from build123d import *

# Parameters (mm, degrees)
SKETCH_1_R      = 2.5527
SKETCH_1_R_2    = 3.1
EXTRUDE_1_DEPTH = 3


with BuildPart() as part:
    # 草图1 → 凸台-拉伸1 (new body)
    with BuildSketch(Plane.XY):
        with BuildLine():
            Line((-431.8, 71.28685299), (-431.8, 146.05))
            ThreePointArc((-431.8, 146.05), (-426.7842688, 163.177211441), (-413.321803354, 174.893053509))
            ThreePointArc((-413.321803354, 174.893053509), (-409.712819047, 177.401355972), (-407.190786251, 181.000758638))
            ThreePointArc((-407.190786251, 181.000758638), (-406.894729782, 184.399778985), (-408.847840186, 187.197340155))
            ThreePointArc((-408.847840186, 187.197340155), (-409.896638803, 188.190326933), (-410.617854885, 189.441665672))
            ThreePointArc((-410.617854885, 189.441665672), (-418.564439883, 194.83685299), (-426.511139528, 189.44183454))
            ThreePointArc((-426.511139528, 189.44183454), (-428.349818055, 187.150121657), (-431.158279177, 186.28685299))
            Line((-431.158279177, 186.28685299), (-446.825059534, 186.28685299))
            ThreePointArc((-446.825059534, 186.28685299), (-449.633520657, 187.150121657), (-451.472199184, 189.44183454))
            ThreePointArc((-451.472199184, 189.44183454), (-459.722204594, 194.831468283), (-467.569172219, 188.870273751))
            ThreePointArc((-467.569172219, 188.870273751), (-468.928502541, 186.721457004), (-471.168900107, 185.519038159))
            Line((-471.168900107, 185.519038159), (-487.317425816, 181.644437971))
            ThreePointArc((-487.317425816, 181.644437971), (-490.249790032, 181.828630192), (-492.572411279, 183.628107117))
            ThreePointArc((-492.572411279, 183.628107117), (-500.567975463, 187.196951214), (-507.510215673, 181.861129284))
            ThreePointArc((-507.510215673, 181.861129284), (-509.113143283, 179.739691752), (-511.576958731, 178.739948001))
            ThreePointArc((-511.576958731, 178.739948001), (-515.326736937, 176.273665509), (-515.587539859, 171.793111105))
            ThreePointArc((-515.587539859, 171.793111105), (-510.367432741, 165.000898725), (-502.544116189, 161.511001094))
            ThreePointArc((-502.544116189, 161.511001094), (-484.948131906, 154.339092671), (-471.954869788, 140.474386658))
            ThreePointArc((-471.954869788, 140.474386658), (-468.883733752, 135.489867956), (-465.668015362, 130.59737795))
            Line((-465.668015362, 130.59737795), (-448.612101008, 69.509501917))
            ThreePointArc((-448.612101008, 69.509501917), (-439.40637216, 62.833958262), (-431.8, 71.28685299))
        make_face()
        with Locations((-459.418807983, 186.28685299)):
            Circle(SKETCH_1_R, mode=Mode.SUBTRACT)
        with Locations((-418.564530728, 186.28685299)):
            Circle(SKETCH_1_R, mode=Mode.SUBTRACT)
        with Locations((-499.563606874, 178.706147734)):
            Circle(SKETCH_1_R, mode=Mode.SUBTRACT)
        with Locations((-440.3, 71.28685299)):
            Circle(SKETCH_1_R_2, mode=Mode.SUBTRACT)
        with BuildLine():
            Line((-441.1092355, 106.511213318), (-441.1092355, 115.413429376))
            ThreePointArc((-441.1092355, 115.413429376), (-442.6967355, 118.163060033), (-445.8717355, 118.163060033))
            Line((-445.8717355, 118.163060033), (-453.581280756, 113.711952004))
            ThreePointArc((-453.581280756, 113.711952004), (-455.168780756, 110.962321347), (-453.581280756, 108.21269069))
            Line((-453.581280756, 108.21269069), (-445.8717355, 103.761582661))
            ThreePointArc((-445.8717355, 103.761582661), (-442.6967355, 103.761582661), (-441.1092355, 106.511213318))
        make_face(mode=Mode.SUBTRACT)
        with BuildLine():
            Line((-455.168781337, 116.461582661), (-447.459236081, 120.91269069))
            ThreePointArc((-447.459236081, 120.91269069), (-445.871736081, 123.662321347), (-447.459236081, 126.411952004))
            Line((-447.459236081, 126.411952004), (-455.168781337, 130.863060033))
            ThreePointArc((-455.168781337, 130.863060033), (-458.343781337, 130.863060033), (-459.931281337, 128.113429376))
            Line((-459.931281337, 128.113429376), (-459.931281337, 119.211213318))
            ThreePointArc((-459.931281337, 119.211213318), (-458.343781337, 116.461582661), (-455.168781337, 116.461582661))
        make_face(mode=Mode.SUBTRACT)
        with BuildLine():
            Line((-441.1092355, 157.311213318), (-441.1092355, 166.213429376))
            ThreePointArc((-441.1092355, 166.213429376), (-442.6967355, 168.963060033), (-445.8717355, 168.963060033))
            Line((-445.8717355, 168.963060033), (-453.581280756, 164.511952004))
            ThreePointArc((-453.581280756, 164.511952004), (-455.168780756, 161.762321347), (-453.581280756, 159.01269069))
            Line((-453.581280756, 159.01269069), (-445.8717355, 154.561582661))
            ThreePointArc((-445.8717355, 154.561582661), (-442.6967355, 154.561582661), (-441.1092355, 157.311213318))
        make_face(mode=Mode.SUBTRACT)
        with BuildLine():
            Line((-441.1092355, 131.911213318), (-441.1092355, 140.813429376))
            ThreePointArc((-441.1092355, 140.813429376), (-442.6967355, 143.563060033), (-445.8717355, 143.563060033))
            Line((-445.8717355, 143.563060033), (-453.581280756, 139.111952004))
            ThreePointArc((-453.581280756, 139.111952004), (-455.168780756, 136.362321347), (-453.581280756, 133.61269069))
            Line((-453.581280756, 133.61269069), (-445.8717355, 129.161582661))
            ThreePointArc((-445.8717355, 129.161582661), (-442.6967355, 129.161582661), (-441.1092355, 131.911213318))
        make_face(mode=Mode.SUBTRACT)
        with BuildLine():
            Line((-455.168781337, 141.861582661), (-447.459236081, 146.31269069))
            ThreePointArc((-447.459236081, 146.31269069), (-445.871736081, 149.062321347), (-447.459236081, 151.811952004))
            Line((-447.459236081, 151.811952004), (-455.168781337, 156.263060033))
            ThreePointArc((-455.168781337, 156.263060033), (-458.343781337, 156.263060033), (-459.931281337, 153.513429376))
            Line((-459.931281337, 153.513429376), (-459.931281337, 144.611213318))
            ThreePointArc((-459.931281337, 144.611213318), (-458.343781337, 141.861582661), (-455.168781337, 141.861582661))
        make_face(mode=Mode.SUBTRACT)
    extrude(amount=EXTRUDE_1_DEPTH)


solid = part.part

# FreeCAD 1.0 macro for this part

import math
import FreeCAD as App
import Part
import Sketcher

V = App.Vector
Q = App.Units.Quantity

doc = App.newDocument("Part")
body = doc.addObject("PartDesign::Body", "Body")

# Sketch on XY plane
sketch1 = doc.addObject("Sketcher::SketchObject", "Sketch")
body.addObject(sketch1)
sketch1.AttachmentSupport = (doc.XY_Plane, [""])
sketch1.MapMode = "FlatFace"
sketch1.addGeometry(Part.LineSegment(V(-431.8, 71.3, 0), V(-431.8, 146.1, 0)), False)
sketch1.addGeometry(Part.ArcOfCircle(Part.Circle(V(-400.1, 146.1, 0), V(0, 0, 1), 31.7), math.radians(115), math.radians(180)), False)
sketch1.addGeometry(Part.ArcOfCircle(Part.Circle(V(-418.6, 186.3, 0), V(0, 0, 1), 12.5), math.radians(-65), math.radians(-25)), False)
sketch1.addGeometry(Part.ArcOfCircle(Part.Circle(V(-411.7, 183.1, 0), V(0, 0, 1), 5), math.radians(-25), math.radians(55)), False)
sketch1.addGeometry(Part.ArcOfCircle(Part.Circle(V(-406, 191.3, 0), V(0, 0, 1), 5), math.radians(-158), math.radians(-125)), False)
sketch1.addGeometry(Part.ArcOfCircle(Part.Circle(V(-418.6, 186.3, 0), V(0, 0, 1), 8.6), math.radians(22), math.radians(158)), False)
sketch1.addGeometry(Part.ArcOfCircle(Part.Circle(V(-431.2, 191.3, 0), V(0, 0, 1), 5), math.radians(-90), math.radians(-22)), False)
sketch1.addGeometry(Part.LineSegment(V(-431.2, 186.3, 0), V(-446.8, 186.3, 0)), False)
sketch1.addGeometry(Part.ArcOfCircle(Part.Circle(V(-446.8, 191.3, 0), V(0, 0, 1), 5), math.radians(-158), math.radians(-90)), False)
sketch1.addGeometry(Part.ArcOfCircle(Part.Circle(V(-459.4, 186.3, 0), V(0, 0, 1), 8.5), math.radians(22), math.radians(162)), False)
sketch1.addGeometry(Part.ArcOfCircle(Part.Circle(V(-472.3, 190.4, 0), V(0, 0, 1), 5), math.radians(-77), math.radians(-18)), False)
sketch1.addGeometry(Part.LineSegment(V(-471.2, 185.5, 0), V(-487.3, 181.6, 0)), False)
sketch1.addGeometry(Part.ArcOfCircle(Part.Circle(V(-488.5, 186.5, 0), V(0, 0, 1), 5), math.radians(-145), math.radians(-77)), False)
sketch1.addGeometry(Part.ArcOfCircle(Part.Circle(V(-499.6, 178.7, 0), V(0, 0, 1), 8.6), math.radians(35), math.radians(158)), False)
sketch1.addGeometry(Part.ArcOfCircle(Part.Circle(V(-512.2, 183.7, 0), V(0, 0, 1), 5), math.radians(-83), math.radians(-22)), False)
sketch1.addGeometry(Part.ArcOfCircle(Part.Circle(V(-511, 173.8, 0), V(0, 0, 1), 5), math.radians(97), math.radians(203)), False)
sketch1.addGeometry(Part.ArcOfCircle(Part.Circle(V(-499.6, 178.7, 0), V(0, 0, 1), 17.5), math.radians(-157), math.radians(-100)), False)
sketch1.addGeometry(Part.ArcOfCircle(Part.Circle(V(-510.1, 117.7, 0), V(0, 0, 1), 44.5), math.radians(31), math.radians(80)), False)
sketch1.addGeometry(Part.ArcOfCircle(Part.Circle(V(-300.2, 242.9, 0), V(0, 0, 1), 200), math.radians(-149.2), math.radians(-145.85)), False)
sketch1.addGeometry(Part.LineSegment(V(-465.7, 130.6, 0), V(-448.6, 69.5, 0)), False)
sketch1.addGeometry(Part.ArcOfCircle(Part.Circle(V(-440.3, 71.3, 0), V(0, 0, 1), 8.5), math.radians(-168), math.radians(0)), False)
sketch1.addGeometry(Part.Circle(V(-440.3, 71.3, 0), V(0, 0, 1), 3.1), False)
sketch1.addGeometry(Part.LineSegment(V(-441.1, 115.4, 0), V(-441.1, 106.5, 0)), False)
sketch1.addGeometry(Part.ArcOfCircle(Part.Circle(V(-444.3, 106.5, 0), V(0, 0, 1), 3.2), math.radians(-120), math.radians(0)), False)
sketch1.addGeometry(Part.LineSegment(V(-445.9, 103.8, 0), V(-453.6, 108.2, 0)), False)
sketch1.addGeometry(Part.ArcOfCircle(Part.Circle(V(-452, 111, 0), V(0, 0, 1), 3.2), math.radians(120), math.radians(240)), False)
sketch1.addGeometry(Part.LineSegment(V(-453.6, 113.7, 0), V(-445.9, 118.2, 0)), False)
sketch1.addGeometry(Part.ArcOfCircle(Part.Circle(V(-444.3, 115.4, 0), V(0, 0, 1), 3.2), math.radians(0), math.radians(120)), False)
sketch1.addGeometry(Part.LineSegment(V(-447.5, 120.9, 0), V(-455.2, 116.5, 0)), False)
sketch1.addGeometry(Part.ArcOfCircle(Part.Circle(V(-456.8, 119.2, 0), V(0, 0, 1), 3.2), math.radians(180), math.radians(300)), False)
sketch1.addGeometry(Part.LineSegment(V(-459.9, 119.2, 0), V(-459.9, 128.1, 0)), False)
sketch1.addGeometry(Part.ArcOfCircle(Part.Circle(V(-456.8, 128.1, 0), V(0, 0, 1), 3.2), math.radians(60), math.radians(180)), False)
sketch1.addGeometry(Part.LineSegment(V(-455.2, 130.9, 0), V(-447.5, 126.4, 0)), False)
sketch1.addGeometry(Part.ArcOfCircle(Part.Circle(V(-449, 123.7, 0), V(0, 0, 1), 3.2), math.radians(-60), math.radians(60)), False)
sketch1.addGeometry(Part.Circle(V(-499.6, 178.7, 0), V(0, 0, 1), 2.6), False)
sketch1.addGeometry(Part.Circle(V(-459.4, 186.3, 0), V(0, 0, 1), 2.6), False)
sketch1.addGeometry(Part.LineSegment(V(-441.1, 140.8, 0), V(-441.1, 131.9, 0)), False)
sketch1.addGeometry(Part.ArcOfCircle(Part.Circle(V(-444.3, 131.9, 0), V(0, 0, 1), 3.2), math.radians(-120), math.radians(0)), False)
sketch1.addGeometry(Part.LineSegment(V(-445.9, 129.2, 0), V(-453.6, 133.6, 0)), False)
sketch1.addGeometry(Part.ArcOfCircle(Part.Circle(V(-452, 136.4, 0), V(0, 0, 1), 3.2), math.radians(120), math.radians(240)), False)
sketch1.addGeometry(Part.LineSegment(V(-453.6, 139.1, 0), V(-445.9, 143.6, 0)), False)
sketch1.addGeometry(Part.ArcOfCircle(Part.Circle(V(-444.3, 140.8, 0), V(0, 0, 1), 3.2), math.radians(0), math.radians(120)), False)
sketch1.addGeometry(Part.LineSegment(V(-447.5, 146.3, 0), V(-455.2, 141.9, 0)), False)
sketch1.addGeometry(Part.ArcOfCircle(Part.Circle(V(-456.8, 144.6, 0), V(0, 0, 1), 3.2), math.radians(180), math.radians(300)), False)
sketch1.addGeometry(Part.LineSegment(V(-459.9, 144.6, 0), V(-459.9, 153.5, 0)), False)
sketch1.addGeometry(Part.ArcOfCircle(Part.Circle(V(-456.8, 153.5, 0), V(0, 0, 1), 3.2), math.radians(60), math.radians(180)), False)
sketch1.addGeometry(Part.LineSegment(V(-455.2, 156.3, 0), V(-447.5, 151.8, 0)), False)
sketch1.addGeometry(Part.ArcOfCircle(Part.Circle(V(-449, 149.1, 0), V(0, 0, 1), 3.2), math.radians(-60), math.radians(60)), False)
sketch1.addGeometry(Part.LineSegment(V(-441.1, 166.2, 0), V(-441.1, 157.3, 0)), False)
sketch1.addGeometry(Part.ArcOfCircle(Part.Circle(V(-444.3, 157.3, 0), V(0, 0, 1), 3.2), math.radians(-120), math.radians(0)), False)
sketch1.addGeometry(Part.LineSegment(V(-445.9, 154.6, 0), V(-453.6, 159, 0)), False)
sketch1.addGeometry(Part.ArcOfCircle(Part.Circle(V(-452, 161.8, 0), V(0, 0, 1), 3.2), math.radians(120), math.radians(240)), False)
sketch1.addGeometry(Part.LineSegment(V(-453.6, 164.5, 0), V(-445.9, 169, 0)), False)
sketch1.addGeometry(Part.ArcOfCircle(Part.Circle(V(-444.3, 166.2, 0), V(0, 0, 1), 3.2), math.radians(0), math.radians(120)), False)
sketch1.addGeometry(Part.Circle(V(-418.6, 186.3, 0), V(0, 0, 1), 2.6), False)
sketch1.addConstraint(Sketcher.Constraint("Tangent", 0, 2, 1, 2))
sketch1.addConstraint(Sketcher.Constraint("Tangent", 1, 1, 2, 1))
sketch1.addConstraint(Sketcher.Constraint("Tangent", 2, 2, 3, 1))
sketch1.addConstraint(Sketcher.Constraint("Tangent", 3, 2, 4, 2))
sketch1.addConstraint(Sketcher.Constraint("Tangent", 4, 1, 5, 1))
sketch1.addConstraint(Sketcher.Constraint("Tangent", 5, 2, 6, 2))
sketch1.addConstraint(Sketcher.Constraint("Tangent", 6, 1, 7, 1))
sketch1.addConstraint(Sketcher.Constraint("Tangent", 7, 2, 8, 2))
sketch1.addConstraint(Sketcher.Constraint("Tangent", 8, 1, 9, 1))
sketch1.addConstraint(Sketcher.Constraint("Tangent", 9, 2, 10, 2))
sketch1.addConstraint(Sketcher.Constraint("Tangent", 10, 1, 11, 1))
sketch1.addConstraint(Sketcher.Constraint("Tangent", 11, 2, 12, 2))
sketch1.addConstraint(Sketcher.Constraint("Tangent", 12, 1, 13, 1))
sketch1.addConstraint(Sketcher.Constraint("Tangent", 13, 2, 14, 2))
sketch1.addConstraint(Sketcher.Constraint("Tangent", 14, 1, 15, 1))
sketch1.addConstraint(Sketcher.Constraint("Tangent", 15, 2, 16, 1))
sketch1.addConstraint(Sketcher.Constraint("Tangent", 16, 2, 17, 2))
sketch1.addConstraint(Sketcher.Constraint("Tangent", 17, 1, 18, 1))
sketch1.addConstraint(Sketcher.Constraint("Coincident", 18, 2, 19, 1))
sketch1.addConstraint(Sketcher.Constraint("Coincident", 19, 2, 20, 1))
sketch1.addConstraint(Sketcher.Constraint("Tangent", 20, 2, 0, 1))
sketch1.addConstraint(Sketcher.Constraint("Tangent", 22, 2, 23, 2))
sketch1.addConstraint(Sketcher.Constraint("Tangent", 23, 1, 24, 1))
sketch1.addConstraint(Sketcher.Constraint("Tangent", 24, 2, 25, 2))
sketch1.addConstraint(Sketcher.Constraint("Tangent", 25, 1, 26, 1))
sketch1.addConstraint(Sketcher.Constraint("Tangent", 26, 2, 27, 2))
sketch1.addConstraint(Sketcher.Constraint("Tangent", 27, 1, 22, 1))
sketch1.addConstraint(Sketcher.Constraint("Tangent", 28, 2, 29, 2))
sketch1.addConstraint(Sketcher.Constraint("Tangent", 29, 1, 30, 1))
sketch1.addConstraint(Sketcher.Constraint("Tangent", 30, 2, 31, 2))
sketch1.addConstraint(Sketcher.Constraint("Tangent", 31, 1, 32, 1))
sketch1.addConstraint(Sketcher.Constraint("Tangent", 32, 2, 33, 2))
sketch1.addConstraint(Sketcher.Constraint("Tangent", 33, 1, 28, 1))
sketch1.addConstraint(Sketcher.Constraint("Tangent", 36, 2, 37, 2))
sketch1.addConstraint(Sketcher.Constraint("Tangent", 37, 1, 38, 1))
sketch1.addConstraint(Sketcher.Constraint("Tangent", 38, 2, 39, 2))
sketch1.addConstraint(Sketcher.Constraint("Tangent", 39, 1, 40, 1))
sketch1.addConstraint(Sketcher.Constraint("Tangent", 40, 2, 41, 2))
sketch1.addConstraint(Sketcher.Constraint("Tangent", 41, 1, 36, 1))
sketch1.addConstraint(Sketcher.Constraint("Tangent", 42, 2, 43, 2))
sketch1.addConstraint(Sketcher.Constraint("Tangent", 43, 1, 44, 1))
sketch1.addConstraint(Sketcher.Constraint("Tangent", 44, 2, 45, 2))
sketch1.addConstraint(Sketcher.Constraint("Tangent", 45, 1, 46, 1))
sketch1.addConstraint(Sketcher.Constraint("Tangent", 46, 2, 47, 2))
sketch1.addConstraint(Sketcher.Constraint("Tangent", 47, 1, 42, 1))
sketch1.addConstraint(Sketcher.Constraint("Tangent", 48, 2, 49, 2))
sketch1.addConstraint(Sketcher.Constraint("Tangent", 49, 1, 50, 1))
sketch1.addConstraint(Sketcher.Constraint("Tangent", 50, 2, 51, 2))
sketch1.addConstraint(Sketcher.Constraint("Tangent", 51, 1, 52, 1))
sketch1.addConstraint(Sketcher.Constraint("Tangent", 52, 2, 53, 2))
sketch1.addConstraint(Sketcher.Constraint("Tangent", 53, 1, 48, 1))
sketch1.addConstraint(Sketcher.Constraint("Vertical", 0))
sketch1.addConstraint(Sketcher.Constraint("Horizontal", 7))
sketch1.addConstraint(Sketcher.Constraint("Vertical", 22))
sketch1.addConstraint(Sketcher.Constraint("Vertical", 30))
sketch1.addConstraint(Sketcher.Constraint("Vertical", 36))
sketch1.addConstraint(Sketcher.Constraint("Vertical", 44))
sketch1.addConstraint(Sketcher.Constraint("Vertical", 48))
sketch1.addConstraint(Sketcher.Constraint("Coincident", 5, 3, 2, 3))
sketch1.addConstraint(Sketcher.Constraint("Coincident", 16, 3, 13, 3))
sketch1.addConstraint(Sketcher.Constraint("Coincident", 21, 3, 20, 3))
sketch1.addConstraint(Sketcher.Constraint("Coincident", 34, 3, 13, 3))
sketch1.addConstraint(Sketcher.Constraint("Coincident", 35, 3, 9, 3))
sketch1.addConstraint(Sketcher.Constraint("Coincident", 54, 3, 2, 3))
sketch1.addConstraint(Sketcher.Constraint("Equal", 3, 4))
sketch1.addConstraint(Sketcher.Constraint("Equal", 4, 6))
sketch1.addConstraint(Sketcher.Constraint("Equal", 6, 8))
sketch1.addConstraint(Sketcher.Constraint("Equal", 5, 9))
sketch1.addConstraint(Sketcher.Constraint("Equal", 8, 10))
sketch1.addConstraint(Sketcher.Constraint("Equal", 10, 12))
sketch1.addConstraint(Sketcher.Constraint("Equal", 9, 13))
sketch1.addConstraint(Sketcher.Constraint("Equal", 12, 14))
sketch1.addConstraint(Sketcher.Constraint("Equal", 14, 15))
sketch1.addConstraint(Sketcher.Constraint("Equal", 23, 25))
sketch1.addConstraint(Sketcher.Constraint("Equal", 25, 27))
sketch1.addConstraint(Sketcher.Constraint("Equal", 27, 29))
sketch1.addConstraint(Sketcher.Constraint("Equal", 29, 31))
sketch1.addConstraint(Sketcher.Constraint("Equal", 31, 33))
sketch1.addConstraint(Sketcher.Constraint("Equal", 34, 35))
sketch1.addConstraint(Sketcher.Constraint("Equal", 33, 37))
sketch1.addConstraint(Sketcher.Constraint("Equal", 37, 39))
sketch1.addConstraint(Sketcher.Constraint("Equal", 39, 41))
sketch1.addConstraint(Sketcher.Constraint("Equal", 41, 43))
sketch1.addConstraint(Sketcher.Constraint("Equal", 43, 45))
sketch1.addConstraint(Sketcher.Constraint("Equal", 45, 47))
sketch1.addConstraint(Sketcher.Constraint("Equal", 47, 49))
sketch1.addConstraint(Sketcher.Constraint("Equal", 49, 51))
sketch1.addConstraint(Sketcher.Constraint("Equal", 51, 53))
sketch1.addConstraint(Sketcher.Constraint("Equal", 35, 54))
sketch1.addConstraint(Sketcher.Constraint("Parallel", 26, 28))
sketch1.addConstraint(Sketcher.Constraint("Parallel", 24, 32))
sketch1.addConstraint(Sketcher.Constraint("Parallel", 32, 38))
sketch1.addConstraint(Sketcher.Constraint("Parallel", 28, 40))
sketch1.addConstraint(Sketcher.Constraint("Parallel", 40, 42))
sketch1.addConstraint(Sketcher.Constraint("Parallel", 38, 46))
sketch1.addConstraint(Sketcher.Constraint("Parallel", 46, 50))
sketch1.addConstraint(Sketcher.Constraint("Parallel", 42, 52))
sketch1.addConstraint(Sketcher.Constraint("Horizontal", 5, 3, 9, 3))
sketch1.addConstraint(Sketcher.Constraint("Horizontal", 54, 3, 6, 1))
sketch1.addConstraint(Sketcher.Constraint("Vertical", 27, 3, 37, 3))
sketch1.addConstraint(Sketcher.Constraint("Vertical", 25, 3, 39, 3))
sketch1.addConstraint(Sketcher.Constraint("Vertical", 31, 3, 43, 3))
sketch1.addConstraint(Sketcher.Constraint("Vertical", 33, 3, 47, 3))
sketch1.addConstraint(Sketcher.Constraint("Vertical", 41, 3, 49, 3))
sketch1.addConstraint(Sketcher.Constraint("Vertical", 39, 3, 51, 3))
sketch1.addConstraint(Sketcher.Constraint("Vertical", 24, 2, 25, 1))
sketch1.addConstraint(Sketcher.Constraint("Equal", 22, 30))
sketch1.addConstraint(Sketcher.Constraint("Radius", 3, Q("5 mm")))
sketch1.addConstraint(Sketcher.Constraint("Radius", 18, Q("200 mm")))
sketch1.addConstraint(Sketcher.Constraint("Diameter", 21, Q("6.2 mm")))
sketch1.addConstraint(Sketcher.Constraint("Radius", 20, Q("8.5 mm")))
sketch1.addConstraint(Sketcher.Constraint("Angle", 24, Q("150 deg")))
sketch1.addConstraint(Sketcher.Constraint("Radius", 1, Q("31.75 mm")))
sketch1.addConstraint(Sketcher.Constraint("Radius", 5, Q("8.55 mm")))
sketch1.addConstraint(Sketcher.Constraint("Radius", 17, Q("44.45 mm")))
sketch1.addConstraint(Sketcher.Constraint("Radius", 23, Q("3.175 mm")))
sketch1.addConstraint(Sketcher.Constraint("Diameter", 34, Q("5.1054 mm")))
sketch1.addConstraint(Sketcher.Constraint("DistanceX", 20, 3, -1, 1, Q("440.3 mm")))
sketch1.addConstraint(Sketcher.Constraint("DistanceY", -1, 1, 1, 3, Q("146.05 mm")))
sketch1.addConstraint(Sketcher.Constraint("DistanceY", -1, 1, 16, 2, Q("161.511001 mm")))
sketch1.addConstraint(Sketcher.Constraint("Radius", 2, Q("12.542123 mm")))
sketch1.addConstraint(Sketcher.Constraint("Radius", 16, Q("17.451547 mm")))
sketch1.addConstraint(Sketcher.Constraint("DistanceX", 7, 2, 7, 1, Q("15.66678 mm")))
sketch1.addConstraint(Sketcher.Constraint("DistanceX", 8, 1, -1, 1, Q("451.472199 mm")))
sketch1.addConstraint(Sketcher.Constraint("DistanceX", 10, 1, -1, 1, Q("471.1689 mm")))
sketch1.addConstraint(Sketcher.Constraint("DistanceX", 19, 2, -1, 1, Q("448.612101 mm")))
sketch1.addConstraint(Sketcher.Constraint("DistanceY", -1, 1, 19, 2, Q("69.509502 mm")))
sketch1.addConstraint(Sketcher.Constraint("Distance", 11, Q("16.606848 mm")))
sketch1.addConstraint(Sketcher.Constraint("Distance", 19, Q("63.424229 mm")))
sketch1.addConstraint(Sketcher.Constraint("DistanceY", 22, 2, 22, 1, Q("8.902216 mm")))
sketch1.addConstraint(Sketcher.Constraint("DistanceY", -1, 1, 15, 3, Q("173.773748 mm")))
sketch1.addConstraint(Sketcher.Constraint("DistanceX", 17, 3, -1, 1, Q("510.135629 mm")))
sketch1.addConstraint(Sketcher.Constraint("DistanceX", 18, 3, -1, 1, Q("300.162929 mm")))
sketch1.addConstraint(Sketcher.Constraint("DistanceX", 25, 3, -1, 1, Q("451.993781 mm")))
sketch1.addConstraint(Sketcher.Constraint("DistanceY", -1, 1, 25, 3, Q("110.962321 mm")))
sketch1.addConstraint(Sketcher.Constraint("DistanceX", 29, 3, -1, 1, Q("456.756281 mm")))
sketch1.addConstraint(Sketcher.Constraint("DistanceY", -1, 1, 31, 3, Q("128.113429 mm")))
sketch1.addConstraint(Sketcher.Constraint("DistanceY", -1, 1, 39, 3, Q("136.362321 mm")))
sketch1.addConstraint(Sketcher.Constraint("DistanceY", -1, 1, 45, 3, Q("153.513429 mm")))
sketch1.addConstraint(Sketcher.Constraint("DistanceY", -1, 1, 51, 3, Q("161.762321 mm")))
sketch1.addConstraint(Sketcher.Constraint("DistanceY", -1, 1, 2, 2, Q("181.000759 mm")))
sketch1.addConstraint(Sketcher.Constraint("DistanceY", -1, 1, 10, 1, Q("185.519038 mm")))
pad1 = doc.addObject("PartDesign::Pad", "Pad")
body.addObject(pad1)
pad1.Profile = sketch1
pad1.Length = 3

doc.recompute()
